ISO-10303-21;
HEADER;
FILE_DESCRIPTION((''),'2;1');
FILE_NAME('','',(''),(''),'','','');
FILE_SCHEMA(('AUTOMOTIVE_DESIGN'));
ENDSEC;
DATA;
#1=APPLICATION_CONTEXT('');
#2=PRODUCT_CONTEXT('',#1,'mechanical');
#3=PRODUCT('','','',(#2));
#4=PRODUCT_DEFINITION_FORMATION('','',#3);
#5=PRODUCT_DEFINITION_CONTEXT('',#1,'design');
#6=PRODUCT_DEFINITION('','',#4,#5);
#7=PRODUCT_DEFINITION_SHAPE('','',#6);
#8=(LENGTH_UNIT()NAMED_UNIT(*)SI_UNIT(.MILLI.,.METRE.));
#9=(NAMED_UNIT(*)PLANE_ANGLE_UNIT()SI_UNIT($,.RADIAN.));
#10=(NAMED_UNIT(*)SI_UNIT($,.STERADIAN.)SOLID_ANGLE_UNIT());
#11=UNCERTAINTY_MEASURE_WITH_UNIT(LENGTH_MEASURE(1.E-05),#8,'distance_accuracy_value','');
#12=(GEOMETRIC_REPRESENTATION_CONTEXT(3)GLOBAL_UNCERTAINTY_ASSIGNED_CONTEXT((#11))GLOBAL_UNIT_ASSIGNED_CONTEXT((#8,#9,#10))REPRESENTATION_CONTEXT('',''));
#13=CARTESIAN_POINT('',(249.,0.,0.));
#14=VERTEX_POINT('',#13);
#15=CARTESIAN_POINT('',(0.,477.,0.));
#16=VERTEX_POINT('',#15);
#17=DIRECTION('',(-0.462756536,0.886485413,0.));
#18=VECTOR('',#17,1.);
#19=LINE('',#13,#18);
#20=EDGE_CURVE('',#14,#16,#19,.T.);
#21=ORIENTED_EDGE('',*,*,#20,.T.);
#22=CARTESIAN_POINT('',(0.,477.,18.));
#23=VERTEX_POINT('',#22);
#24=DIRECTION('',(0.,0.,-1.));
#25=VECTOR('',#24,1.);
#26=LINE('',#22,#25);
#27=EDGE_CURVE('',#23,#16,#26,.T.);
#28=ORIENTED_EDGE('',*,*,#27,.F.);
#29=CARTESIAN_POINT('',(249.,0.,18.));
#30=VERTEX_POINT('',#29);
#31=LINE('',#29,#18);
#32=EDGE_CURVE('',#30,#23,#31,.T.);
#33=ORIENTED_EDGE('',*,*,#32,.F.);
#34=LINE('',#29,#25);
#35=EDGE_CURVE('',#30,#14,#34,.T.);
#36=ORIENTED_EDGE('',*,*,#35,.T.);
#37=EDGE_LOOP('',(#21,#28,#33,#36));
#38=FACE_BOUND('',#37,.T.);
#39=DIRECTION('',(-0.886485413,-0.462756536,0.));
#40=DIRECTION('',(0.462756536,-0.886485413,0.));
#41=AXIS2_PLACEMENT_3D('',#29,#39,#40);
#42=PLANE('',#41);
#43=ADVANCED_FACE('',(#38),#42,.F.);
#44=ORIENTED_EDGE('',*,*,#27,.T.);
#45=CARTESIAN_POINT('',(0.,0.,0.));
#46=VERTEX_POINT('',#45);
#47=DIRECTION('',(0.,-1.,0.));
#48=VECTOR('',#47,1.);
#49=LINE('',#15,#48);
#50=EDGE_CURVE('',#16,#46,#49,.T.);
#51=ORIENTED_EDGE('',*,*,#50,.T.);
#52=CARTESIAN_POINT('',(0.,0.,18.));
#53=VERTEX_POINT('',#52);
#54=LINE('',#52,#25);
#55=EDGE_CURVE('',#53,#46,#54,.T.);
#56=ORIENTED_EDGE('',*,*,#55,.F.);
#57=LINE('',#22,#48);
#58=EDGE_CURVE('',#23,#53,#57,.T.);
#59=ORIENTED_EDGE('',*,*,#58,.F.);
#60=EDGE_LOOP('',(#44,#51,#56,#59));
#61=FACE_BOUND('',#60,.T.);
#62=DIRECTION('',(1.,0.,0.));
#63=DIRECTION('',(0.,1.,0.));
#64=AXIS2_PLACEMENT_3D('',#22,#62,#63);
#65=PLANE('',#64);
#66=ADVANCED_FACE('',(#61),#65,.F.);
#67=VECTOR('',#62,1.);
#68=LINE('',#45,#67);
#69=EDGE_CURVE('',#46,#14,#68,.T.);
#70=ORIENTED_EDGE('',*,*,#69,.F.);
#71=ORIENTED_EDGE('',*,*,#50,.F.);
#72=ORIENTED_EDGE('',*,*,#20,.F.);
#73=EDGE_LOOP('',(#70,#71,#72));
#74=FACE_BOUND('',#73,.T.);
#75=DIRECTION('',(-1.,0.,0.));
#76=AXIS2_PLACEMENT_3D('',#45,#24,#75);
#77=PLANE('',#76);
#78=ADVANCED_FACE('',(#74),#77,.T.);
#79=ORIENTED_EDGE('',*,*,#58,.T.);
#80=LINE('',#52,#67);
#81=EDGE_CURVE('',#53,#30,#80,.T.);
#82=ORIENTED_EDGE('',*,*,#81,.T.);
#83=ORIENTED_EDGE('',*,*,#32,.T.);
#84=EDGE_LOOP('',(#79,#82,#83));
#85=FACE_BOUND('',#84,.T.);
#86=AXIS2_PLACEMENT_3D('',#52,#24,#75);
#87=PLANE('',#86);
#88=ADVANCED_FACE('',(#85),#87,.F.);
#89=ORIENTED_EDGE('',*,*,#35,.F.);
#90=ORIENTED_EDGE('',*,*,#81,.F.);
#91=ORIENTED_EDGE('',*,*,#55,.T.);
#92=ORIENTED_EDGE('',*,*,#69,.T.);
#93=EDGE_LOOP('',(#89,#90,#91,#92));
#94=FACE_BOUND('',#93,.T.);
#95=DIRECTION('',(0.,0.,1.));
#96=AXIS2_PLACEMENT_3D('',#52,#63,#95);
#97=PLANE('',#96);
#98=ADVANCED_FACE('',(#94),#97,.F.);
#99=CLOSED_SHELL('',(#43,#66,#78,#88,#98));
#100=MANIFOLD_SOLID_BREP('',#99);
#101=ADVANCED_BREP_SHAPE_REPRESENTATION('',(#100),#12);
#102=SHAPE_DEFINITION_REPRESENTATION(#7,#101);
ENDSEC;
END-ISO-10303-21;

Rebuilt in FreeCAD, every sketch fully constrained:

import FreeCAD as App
import Part
import Sketcher

V = App.Vector

doc = App.newDocument("Part")
params = doc.addObject("Spreadsheet::Sheet", "Params")
for row, (alias, value) in enumerate([
    ("sketch1_width", "249 mm"),
    ("sketch1_height", "477 mm"),
    ("pad1_length", "18 mm"),
], start=1):
    params.set(f"A{row}", alias)
    params.set(f"B{row}", "=" + value)
    params.setAlias(f"B{row}", alias)

body = doc.addObject("PartDesign::Body", "Body")

# Sketch on XY plane
sketch1 = body.newObject("Sketcher::SketchObject", "Sketch")
sketch1.AttachmentSupport = (doc.getObject("XY_Plane"), [""])
sketch1.MapMode = "FlatFace"
sketch1.addGeometry(Part.LineSegment(V(0, 477, 0), V(0, 0, 0)), False)
sketch1.addGeometry(Part.LineSegment(V(0, 0, 0), V(249, 0, 0)), False)
sketch1.addGeometry(Part.LineSegment(V(249, 0, 0), V(0, 477, 0)), False)
sketch1.addConstraint(Sketcher.Constraint("Coincident", 0, 2, 1, 1))
sketch1.addConstraint(Sketcher.Constraint("Coincident", 1, 2, 2, 1))
sketch1.addConstraint(Sketcher.Constraint("Coincident", 2, 2, 0, 1))
sketch1.addConstraint(Sketcher.Constraint("Vertical", 0))
sketch1.addConstraint(Sketcher.Constraint("Horizontal", 1))
sketch1.addConstraint(Sketcher.Constraint("Coincident", 0, 2, -1, 1))
sketch1.addConstraint(Sketcher.Constraint("DistanceX", 1, 1, 1, 2, 249.0))
sketch1.addConstraint(Sketcher.Constraint("DistanceY", 0, 2, 0, 1, 477.0))
sketch1.setExpression("Constraints[6]", "Params.sketch1_width")
sketch1.setExpression("Constraints[7]", "Params.sketch1_height")
pad1 = body.newObject("PartDesign::Pad", "Pad")
pad1.Profile = sketch1
pad1.setExpression("Length", "Params.pad1_length")

doc.recompute()
